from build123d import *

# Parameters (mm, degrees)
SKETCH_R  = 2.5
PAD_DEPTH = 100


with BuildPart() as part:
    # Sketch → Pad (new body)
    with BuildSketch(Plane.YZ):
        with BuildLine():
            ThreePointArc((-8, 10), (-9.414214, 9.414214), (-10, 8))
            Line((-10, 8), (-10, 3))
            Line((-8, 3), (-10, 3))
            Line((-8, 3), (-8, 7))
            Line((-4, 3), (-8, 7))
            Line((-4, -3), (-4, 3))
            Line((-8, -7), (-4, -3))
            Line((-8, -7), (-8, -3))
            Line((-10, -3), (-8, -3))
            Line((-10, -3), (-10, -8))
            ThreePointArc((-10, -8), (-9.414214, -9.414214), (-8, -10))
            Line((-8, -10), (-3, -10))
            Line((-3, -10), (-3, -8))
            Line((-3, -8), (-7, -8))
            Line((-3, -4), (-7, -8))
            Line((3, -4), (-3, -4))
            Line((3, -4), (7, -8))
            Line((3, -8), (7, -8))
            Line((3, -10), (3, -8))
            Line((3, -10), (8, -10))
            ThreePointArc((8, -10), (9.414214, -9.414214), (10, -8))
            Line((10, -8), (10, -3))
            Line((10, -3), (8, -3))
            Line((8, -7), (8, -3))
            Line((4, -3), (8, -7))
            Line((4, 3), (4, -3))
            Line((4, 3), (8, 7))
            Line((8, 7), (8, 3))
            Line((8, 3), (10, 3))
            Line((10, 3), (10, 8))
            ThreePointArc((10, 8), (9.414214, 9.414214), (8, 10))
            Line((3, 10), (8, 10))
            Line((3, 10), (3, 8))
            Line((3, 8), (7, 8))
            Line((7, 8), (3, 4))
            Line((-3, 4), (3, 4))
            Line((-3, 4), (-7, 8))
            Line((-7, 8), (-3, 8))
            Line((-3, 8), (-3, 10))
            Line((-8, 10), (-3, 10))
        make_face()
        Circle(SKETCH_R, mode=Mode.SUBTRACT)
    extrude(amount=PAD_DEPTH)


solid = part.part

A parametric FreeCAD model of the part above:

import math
import FreeCAD as App
import Part
import Sketcher
from FreeCAD import Vector

doc = App.newDocument("Part")
body = doc.addObject("PartDesign::Body", "Body")

sketch1 = body.newObject("Sketcher::SketchObject", "Sketch")
sketch1.AttachmentSupport = (doc.getObject("YZ_Plane"), [""])
sketch1.MapMode = "FlatFace"
sketch1.addGeometry([
    Part.ArcOfCircle(Part.Circle(Vector(-8.000001, 8.000001, 0), Vector(0, 0, 1), 1.999999), math.radians(89.999957), math.radians(180.000043)),
    Part.LineSegment(Vector(-10, 8, 0), Vector(-10, 3, 0)),
    Part.LineSegment(Vector(-10, 3, 0), Vector(-8, 3, 0)),
    Part.LineSegment(Vector(-8, 3, 0), Vector(-8, 7, 0)),
    Part.LineSegment(Vector(-8, 7, 0), Vector(-4, 3, 0)),
    Part.LineSegment(Vector(-4, 3, 0), Vector(-4, -3, 0)),
    Part.LineSegment(Vector(-4, -3, 0), Vector(-8, -7, 0)),
    Part.LineSegment(Vector(-8, -7, 0), Vector(-8, -3, 0)),
    Part.LineSegment(Vector(-8, -3, 0), Vector(-10, -3, 0)),
    Part.LineSegment(Vector(-10, -3, 0), Vector(-10, -8, 0)),
    Part.ArcOfCircle(Part.Circle(Vector(-8.000001, -8.000001, 0), Vector(0, 0, 1), 1.999999), math.radians(179.999957), math.radians(270.000043)),
    Part.LineSegment(Vector(-8, -10, 0), Vector(-3, -10, 0)),
    Part.LineSegment(Vector(-3, -10, 0), Vector(-3, -8, 0)),
    Part.LineSegment(Vector(-3, -8, 0), Vector(-7, -8, 0)),
    Part.LineSegment(Vector(-7, -8, 0), Vector(-3, -4, 0)),
    Part.LineSegment(Vector(-3, -4, 0), Vector(3, -4, 0)),
    Part.LineSegment(Vector(3, -4, 0), Vector(7, -8, 0)),
    Part.LineSegment(Vector(7, -8, 0), Vector(3, -8, 0)),
    Part.LineSegment(Vector(3, -8, 0), Vector(3, -10, 0)),
    Part.LineSegment(Vector(3, -10, 0), Vector(8, -10, 0)),
    Part.ArcOfCircle(Part.Circle(Vector(8.000001, -8.000001, 0), Vector(0, 0, 1), 1.999999), math.radians(-90.000043), math.radians(0.000043)),
    Part.LineSegment(Vector(10, -8, 0), Vector(10, -3, 0)),
    Part.LineSegment(Vector(10, -3, 0), Vector(8, -3, 0)),
    Part.LineSegment(Vector(8, -3, 0), Vector(8, -7, 0)),
    Part.LineSegment(Vector(8, -7, 0), Vector(4, -3, 0)),
    Part.LineSegment(Vector(4, -3, 0), Vector(4, 3, 0)),
    Part.LineSegment(Vector(4, 3, 0), Vector(8, 7, 0)),
    Part.LineSegment(Vector(8, 7, 0), Vector(8, 3, 0)),
    Part.LineSegment(Vector(8, 3, 0), Vector(10, 3, 0)),
    Part.LineSegment(Vector(10, 3, 0), Vector(10, 8, 0)),
    Part.ArcOfCircle(Part.Circle(Vector(8.000001, 8.000001, 0), Vector(0, 0, 1), 1.999999), math.radians(-0.000043), math.radians(90.000043)),
    Part.LineSegment(Vector(8, 10, 0), Vector(3, 10, 0)),
    Part.LineSegment(Vector(3, 10, 0), Vector(3, 8, 0)),
    Part.LineSegment(Vector(3, 8, 0), Vector(7, 8, 0)),
    Part.LineSegment(Vector(7, 8, 0), Vector(3, 4, 0)),
    Part.LineSegment(Vector(3, 4, 0), Vector(-3, 4, 0)),
    Part.LineSegment(Vector(-3, 4, 0), Vector(-7, 8, 0)),
    Part.LineSegment(Vector(-7, 8, 0), Vector(-3, 8, 0)),
    Part.LineSegment(Vector(-3, 8, 0), Vector(-3, 10, 0)),
    Part.LineSegment(Vector(-3, 10, 0), Vector(-8, 10, 0)),
    Part.Circle(Vector(0, 0, 0), Vector(0, 0, 1), 2.5),
], False)
sketch1.addConstraint([
    Sketcher.Constraint("Tangent", 0, 2, 1, 1),
    Sketcher.Constraint("Coincident", 1, 2, 2, 1),
    Sketcher.Constraint("Coincident", 2, 2, 3, 1),
    Sketcher.Constraint("Coincident", 3, 2, 4, 1),
    Sketcher.Constraint("Coincident", 4, 2, 5, 1),
    Sketcher.Constraint("Coincident", 5, 2, 6, 1),
    Sketcher.Constraint("Coincident", 6, 2, 7, 1),
    Sketcher.Constraint("Coincident", 7, 2, 8, 1),
    Sketcher.Constraint("Coincident", 8, 2, 9, 1),
    Sketcher.Constraint("Tangent", 9, 2, 10, 1),
    Sketcher.Constraint("Tangent", 10, 2, 11, 1),
    Sketcher.Constraint("Coincident", 11, 2, 12, 1),
    Sketcher.Constraint("Coincident", 12, 2, 13, 1),
    Sketcher.Constraint("Coincident", 13, 2, 14, 1),
    Sketcher.Constraint("Coincident", 14, 2, 15, 1),
    Sketcher.Constraint("Coincident", 15, 2, 16, 1),
    Sketcher.Constraint("Coincident", 16, 2, 17, 1),
    Sketcher.Constraint("Coincident", 17, 2, 18, 1),
    Sketcher.Constraint("Coincident", 18, 2, 19, 1),
    Sketcher.Constraint("Tangent", 19, 2, 20, 1),
    Sketcher.Constraint("Tangent", 20, 2, 21, 1),
    Sketcher.Constraint("Coincident", 21, 2, 22, 1),
    Sketcher.Constraint("Coincident", 22, 2, 23, 1),
    Sketcher.Constraint("Coincident", 23, 2, 24, 1),
    Sketcher.Constraint("Coincident", 24, 2, 25, 1),
    Sketcher.Constraint("Coincident", 25, 2, 26, 1),
    Sketcher.Constraint("Coincident", 26, 2, 27, 1),
    Sketcher.Constraint("Coincident", 27, 2, 28, 1),
    Sketcher.Constraint("Coincident", 28, 2, 29, 1),
    Sketcher.Constraint("Tangent", 29, 2, 30, 1),
    Sketcher.Constraint("Tangent", 30, 2, 31, 1),
    Sketcher.Constraint("Coincident", 31, 2, 32, 1),
    Sketcher.Constraint("Coincident", 32, 2, 33, 1),
    Sketcher.Constraint("Coincident", 33, 2, 34, 1),
    Sketcher.Constraint("Coincident", 34, 2, 35, 1),
    Sketcher.Constraint("Coincident", 35, 2, 36, 1),
    Sketcher.Constraint("Coincident", 36, 2, 37, 1),
    Sketcher.Constraint("Coincident", 37, 2, 38, 1),
    Sketcher.Constraint("Coincident", 38, 2, 39, 1),
    Sketcher.Constraint("Tangent", 39, 2, 0, 1),
    Sketcher.Constraint("Vertical", 1),
    Sketcher.Constraint("Horizontal", 2),
    Sketcher.Constraint("Vertical", 3),
    Sketcher.Constraint("Vertical", 5),
    Sketcher.Constraint("Vertical", 7),
    Sketcher.Constraint("Horizontal", 8),
    Sketcher.Constraint("Vertical", 9),
    Sketcher.Constraint("Horizontal", 11),
    Sketcher.Constraint("Vertical", 12),
    Sketcher.Constraint("Horizontal", 13),
    Sketcher.Constraint("Horizontal", 15),
    Sketcher.Constraint("Horizontal", 17),
    Sketcher.Constraint("Vertical", 18),
    Sketcher.Constraint("Horizontal", 19),
    Sketcher.Constraint("Vertical", 21),
    Sketcher.Constraint("Horizontal", 22),
    Sketcher.Constraint("Vertical", 23),
    Sketcher.Constraint("Vertical", 25),
    Sketcher.Constraint("Vertical", 27),
    Sketcher.Constraint("Horizontal", 28),
    Sketcher.Constraint("Vertical", 29),
    Sketcher.Constraint("Horizontal", 31),
    Sketcher.Constraint("Vertical", 32),
    Sketcher.Constraint("Horizontal", 33),
    Sketcher.Constraint("Horizontal", 35),
    Sketcher.Constraint("Horizontal", 37),
    Sketcher.Constraint("Vertical", 38),
    Sketcher.Constraint("Horizontal", 39),
    Sketcher.Constraint("Coincident", 40, 3, -1, 1),
    Sketcher.Constraint("Equal", 0, 10),
    Sketcher.Constraint("Equal", 10, 20),
    Sketcher.Constraint("Equal", 20, 30),
    Sketcher.Constraint("Symmetric", 0, 3, 20, 3, -1, 1),
    Sketcher.Constraint("Symmetric", 10, 3, 30, 3, -1, 1),
    Sketcher.Constraint("Symmetric", 2, 2, 22, 2, -1, 1),
    Sketcher.Constraint("Symmetric", 4, 2, 24, 2, -1, 1),
    Sketcher.Constraint("Symmetric", 6, 2, 26, 2, -1, 1),
    Sketcher.Constraint("Symmetric", 12, 2, 32, 2, -1, 1),
    Sketcher.Constraint("Symmetric", 14, 2, 34, 2, -1, 1),
    Sketcher.Constraint("Symmetric", 16, 2, 36, 2, -1, 1),
    Sketcher.Constraint("Symmetric", 10, 3, 20, 3, -2),
    Sketcher.Constraint("Symmetric", 13, 2, 16, 2, -2),
    Sketcher.Constraint("Symmetric", 7, 2, 22, 2, -2),
    Sketcher.Constraint("Perpendicular", 4, 6),
    Sketcher.Constraint("Parallel", 6, 14),
    Sketcher.Constraint("Perpendicular", 14, 16),
    Sketcher.Constraint("Parallel", 16, 24),
    Sketcher.Constraint("Perpendicular", 24, 26),
    Sketcher.Constraint("Parallel", 26, 34),
    Sketcher.Constraint("Perpendicular", 34, 36),
    Sketcher.Constraint("Horizontal", 2, 2, 4, 2),
    Sketcher.Constraint("Horizontal", 5, 2, 7, 2),
    Sketcher.Constraint("Horizontal", 9, 2, 12, 2),
    Sketcher.Constraint("Horizontal", 6, 2, 23, 2),
    Sketcher.Constraint("Horizontal", 25, 2, 27, 2),
    Sketcher.Constraint("Vertical", 10, 3, 2, 2),
    Sketcher.Constraint("Vertical", 12, 2, 14, 2),
    Sketcher.Constraint("Vertical", 15, 2, 17, 2),
    Sketcher.Constraint("Vertical", 35, 2, 37, 2),
    Sketcher.Constraint("Equal", 39, 1),
    Sketcher.Constraint("Equal", 37, 3),
    Sketcher.Constraint("Equal", 35, 5),
    Sketcher.Constraint("Diameter", 40, 5.0),
    Sketcher.Constraint("Radius", 0, 1.999999),
    Sketcher.Constraint("DistanceX", 11, 1, 11, 2, 5.0),
    Sketcher.Constraint("DistanceX", 13, 2, 13, 1, 4.0),
    Sketcher.Constraint("DistanceX", 15, 1, 15, 2, 6.0),
])
pad1 = body.newObject("PartDesign::Pad", "Pad")
pad1.Profile = sketch1
pad1.Length = 100

doc.recompute()
